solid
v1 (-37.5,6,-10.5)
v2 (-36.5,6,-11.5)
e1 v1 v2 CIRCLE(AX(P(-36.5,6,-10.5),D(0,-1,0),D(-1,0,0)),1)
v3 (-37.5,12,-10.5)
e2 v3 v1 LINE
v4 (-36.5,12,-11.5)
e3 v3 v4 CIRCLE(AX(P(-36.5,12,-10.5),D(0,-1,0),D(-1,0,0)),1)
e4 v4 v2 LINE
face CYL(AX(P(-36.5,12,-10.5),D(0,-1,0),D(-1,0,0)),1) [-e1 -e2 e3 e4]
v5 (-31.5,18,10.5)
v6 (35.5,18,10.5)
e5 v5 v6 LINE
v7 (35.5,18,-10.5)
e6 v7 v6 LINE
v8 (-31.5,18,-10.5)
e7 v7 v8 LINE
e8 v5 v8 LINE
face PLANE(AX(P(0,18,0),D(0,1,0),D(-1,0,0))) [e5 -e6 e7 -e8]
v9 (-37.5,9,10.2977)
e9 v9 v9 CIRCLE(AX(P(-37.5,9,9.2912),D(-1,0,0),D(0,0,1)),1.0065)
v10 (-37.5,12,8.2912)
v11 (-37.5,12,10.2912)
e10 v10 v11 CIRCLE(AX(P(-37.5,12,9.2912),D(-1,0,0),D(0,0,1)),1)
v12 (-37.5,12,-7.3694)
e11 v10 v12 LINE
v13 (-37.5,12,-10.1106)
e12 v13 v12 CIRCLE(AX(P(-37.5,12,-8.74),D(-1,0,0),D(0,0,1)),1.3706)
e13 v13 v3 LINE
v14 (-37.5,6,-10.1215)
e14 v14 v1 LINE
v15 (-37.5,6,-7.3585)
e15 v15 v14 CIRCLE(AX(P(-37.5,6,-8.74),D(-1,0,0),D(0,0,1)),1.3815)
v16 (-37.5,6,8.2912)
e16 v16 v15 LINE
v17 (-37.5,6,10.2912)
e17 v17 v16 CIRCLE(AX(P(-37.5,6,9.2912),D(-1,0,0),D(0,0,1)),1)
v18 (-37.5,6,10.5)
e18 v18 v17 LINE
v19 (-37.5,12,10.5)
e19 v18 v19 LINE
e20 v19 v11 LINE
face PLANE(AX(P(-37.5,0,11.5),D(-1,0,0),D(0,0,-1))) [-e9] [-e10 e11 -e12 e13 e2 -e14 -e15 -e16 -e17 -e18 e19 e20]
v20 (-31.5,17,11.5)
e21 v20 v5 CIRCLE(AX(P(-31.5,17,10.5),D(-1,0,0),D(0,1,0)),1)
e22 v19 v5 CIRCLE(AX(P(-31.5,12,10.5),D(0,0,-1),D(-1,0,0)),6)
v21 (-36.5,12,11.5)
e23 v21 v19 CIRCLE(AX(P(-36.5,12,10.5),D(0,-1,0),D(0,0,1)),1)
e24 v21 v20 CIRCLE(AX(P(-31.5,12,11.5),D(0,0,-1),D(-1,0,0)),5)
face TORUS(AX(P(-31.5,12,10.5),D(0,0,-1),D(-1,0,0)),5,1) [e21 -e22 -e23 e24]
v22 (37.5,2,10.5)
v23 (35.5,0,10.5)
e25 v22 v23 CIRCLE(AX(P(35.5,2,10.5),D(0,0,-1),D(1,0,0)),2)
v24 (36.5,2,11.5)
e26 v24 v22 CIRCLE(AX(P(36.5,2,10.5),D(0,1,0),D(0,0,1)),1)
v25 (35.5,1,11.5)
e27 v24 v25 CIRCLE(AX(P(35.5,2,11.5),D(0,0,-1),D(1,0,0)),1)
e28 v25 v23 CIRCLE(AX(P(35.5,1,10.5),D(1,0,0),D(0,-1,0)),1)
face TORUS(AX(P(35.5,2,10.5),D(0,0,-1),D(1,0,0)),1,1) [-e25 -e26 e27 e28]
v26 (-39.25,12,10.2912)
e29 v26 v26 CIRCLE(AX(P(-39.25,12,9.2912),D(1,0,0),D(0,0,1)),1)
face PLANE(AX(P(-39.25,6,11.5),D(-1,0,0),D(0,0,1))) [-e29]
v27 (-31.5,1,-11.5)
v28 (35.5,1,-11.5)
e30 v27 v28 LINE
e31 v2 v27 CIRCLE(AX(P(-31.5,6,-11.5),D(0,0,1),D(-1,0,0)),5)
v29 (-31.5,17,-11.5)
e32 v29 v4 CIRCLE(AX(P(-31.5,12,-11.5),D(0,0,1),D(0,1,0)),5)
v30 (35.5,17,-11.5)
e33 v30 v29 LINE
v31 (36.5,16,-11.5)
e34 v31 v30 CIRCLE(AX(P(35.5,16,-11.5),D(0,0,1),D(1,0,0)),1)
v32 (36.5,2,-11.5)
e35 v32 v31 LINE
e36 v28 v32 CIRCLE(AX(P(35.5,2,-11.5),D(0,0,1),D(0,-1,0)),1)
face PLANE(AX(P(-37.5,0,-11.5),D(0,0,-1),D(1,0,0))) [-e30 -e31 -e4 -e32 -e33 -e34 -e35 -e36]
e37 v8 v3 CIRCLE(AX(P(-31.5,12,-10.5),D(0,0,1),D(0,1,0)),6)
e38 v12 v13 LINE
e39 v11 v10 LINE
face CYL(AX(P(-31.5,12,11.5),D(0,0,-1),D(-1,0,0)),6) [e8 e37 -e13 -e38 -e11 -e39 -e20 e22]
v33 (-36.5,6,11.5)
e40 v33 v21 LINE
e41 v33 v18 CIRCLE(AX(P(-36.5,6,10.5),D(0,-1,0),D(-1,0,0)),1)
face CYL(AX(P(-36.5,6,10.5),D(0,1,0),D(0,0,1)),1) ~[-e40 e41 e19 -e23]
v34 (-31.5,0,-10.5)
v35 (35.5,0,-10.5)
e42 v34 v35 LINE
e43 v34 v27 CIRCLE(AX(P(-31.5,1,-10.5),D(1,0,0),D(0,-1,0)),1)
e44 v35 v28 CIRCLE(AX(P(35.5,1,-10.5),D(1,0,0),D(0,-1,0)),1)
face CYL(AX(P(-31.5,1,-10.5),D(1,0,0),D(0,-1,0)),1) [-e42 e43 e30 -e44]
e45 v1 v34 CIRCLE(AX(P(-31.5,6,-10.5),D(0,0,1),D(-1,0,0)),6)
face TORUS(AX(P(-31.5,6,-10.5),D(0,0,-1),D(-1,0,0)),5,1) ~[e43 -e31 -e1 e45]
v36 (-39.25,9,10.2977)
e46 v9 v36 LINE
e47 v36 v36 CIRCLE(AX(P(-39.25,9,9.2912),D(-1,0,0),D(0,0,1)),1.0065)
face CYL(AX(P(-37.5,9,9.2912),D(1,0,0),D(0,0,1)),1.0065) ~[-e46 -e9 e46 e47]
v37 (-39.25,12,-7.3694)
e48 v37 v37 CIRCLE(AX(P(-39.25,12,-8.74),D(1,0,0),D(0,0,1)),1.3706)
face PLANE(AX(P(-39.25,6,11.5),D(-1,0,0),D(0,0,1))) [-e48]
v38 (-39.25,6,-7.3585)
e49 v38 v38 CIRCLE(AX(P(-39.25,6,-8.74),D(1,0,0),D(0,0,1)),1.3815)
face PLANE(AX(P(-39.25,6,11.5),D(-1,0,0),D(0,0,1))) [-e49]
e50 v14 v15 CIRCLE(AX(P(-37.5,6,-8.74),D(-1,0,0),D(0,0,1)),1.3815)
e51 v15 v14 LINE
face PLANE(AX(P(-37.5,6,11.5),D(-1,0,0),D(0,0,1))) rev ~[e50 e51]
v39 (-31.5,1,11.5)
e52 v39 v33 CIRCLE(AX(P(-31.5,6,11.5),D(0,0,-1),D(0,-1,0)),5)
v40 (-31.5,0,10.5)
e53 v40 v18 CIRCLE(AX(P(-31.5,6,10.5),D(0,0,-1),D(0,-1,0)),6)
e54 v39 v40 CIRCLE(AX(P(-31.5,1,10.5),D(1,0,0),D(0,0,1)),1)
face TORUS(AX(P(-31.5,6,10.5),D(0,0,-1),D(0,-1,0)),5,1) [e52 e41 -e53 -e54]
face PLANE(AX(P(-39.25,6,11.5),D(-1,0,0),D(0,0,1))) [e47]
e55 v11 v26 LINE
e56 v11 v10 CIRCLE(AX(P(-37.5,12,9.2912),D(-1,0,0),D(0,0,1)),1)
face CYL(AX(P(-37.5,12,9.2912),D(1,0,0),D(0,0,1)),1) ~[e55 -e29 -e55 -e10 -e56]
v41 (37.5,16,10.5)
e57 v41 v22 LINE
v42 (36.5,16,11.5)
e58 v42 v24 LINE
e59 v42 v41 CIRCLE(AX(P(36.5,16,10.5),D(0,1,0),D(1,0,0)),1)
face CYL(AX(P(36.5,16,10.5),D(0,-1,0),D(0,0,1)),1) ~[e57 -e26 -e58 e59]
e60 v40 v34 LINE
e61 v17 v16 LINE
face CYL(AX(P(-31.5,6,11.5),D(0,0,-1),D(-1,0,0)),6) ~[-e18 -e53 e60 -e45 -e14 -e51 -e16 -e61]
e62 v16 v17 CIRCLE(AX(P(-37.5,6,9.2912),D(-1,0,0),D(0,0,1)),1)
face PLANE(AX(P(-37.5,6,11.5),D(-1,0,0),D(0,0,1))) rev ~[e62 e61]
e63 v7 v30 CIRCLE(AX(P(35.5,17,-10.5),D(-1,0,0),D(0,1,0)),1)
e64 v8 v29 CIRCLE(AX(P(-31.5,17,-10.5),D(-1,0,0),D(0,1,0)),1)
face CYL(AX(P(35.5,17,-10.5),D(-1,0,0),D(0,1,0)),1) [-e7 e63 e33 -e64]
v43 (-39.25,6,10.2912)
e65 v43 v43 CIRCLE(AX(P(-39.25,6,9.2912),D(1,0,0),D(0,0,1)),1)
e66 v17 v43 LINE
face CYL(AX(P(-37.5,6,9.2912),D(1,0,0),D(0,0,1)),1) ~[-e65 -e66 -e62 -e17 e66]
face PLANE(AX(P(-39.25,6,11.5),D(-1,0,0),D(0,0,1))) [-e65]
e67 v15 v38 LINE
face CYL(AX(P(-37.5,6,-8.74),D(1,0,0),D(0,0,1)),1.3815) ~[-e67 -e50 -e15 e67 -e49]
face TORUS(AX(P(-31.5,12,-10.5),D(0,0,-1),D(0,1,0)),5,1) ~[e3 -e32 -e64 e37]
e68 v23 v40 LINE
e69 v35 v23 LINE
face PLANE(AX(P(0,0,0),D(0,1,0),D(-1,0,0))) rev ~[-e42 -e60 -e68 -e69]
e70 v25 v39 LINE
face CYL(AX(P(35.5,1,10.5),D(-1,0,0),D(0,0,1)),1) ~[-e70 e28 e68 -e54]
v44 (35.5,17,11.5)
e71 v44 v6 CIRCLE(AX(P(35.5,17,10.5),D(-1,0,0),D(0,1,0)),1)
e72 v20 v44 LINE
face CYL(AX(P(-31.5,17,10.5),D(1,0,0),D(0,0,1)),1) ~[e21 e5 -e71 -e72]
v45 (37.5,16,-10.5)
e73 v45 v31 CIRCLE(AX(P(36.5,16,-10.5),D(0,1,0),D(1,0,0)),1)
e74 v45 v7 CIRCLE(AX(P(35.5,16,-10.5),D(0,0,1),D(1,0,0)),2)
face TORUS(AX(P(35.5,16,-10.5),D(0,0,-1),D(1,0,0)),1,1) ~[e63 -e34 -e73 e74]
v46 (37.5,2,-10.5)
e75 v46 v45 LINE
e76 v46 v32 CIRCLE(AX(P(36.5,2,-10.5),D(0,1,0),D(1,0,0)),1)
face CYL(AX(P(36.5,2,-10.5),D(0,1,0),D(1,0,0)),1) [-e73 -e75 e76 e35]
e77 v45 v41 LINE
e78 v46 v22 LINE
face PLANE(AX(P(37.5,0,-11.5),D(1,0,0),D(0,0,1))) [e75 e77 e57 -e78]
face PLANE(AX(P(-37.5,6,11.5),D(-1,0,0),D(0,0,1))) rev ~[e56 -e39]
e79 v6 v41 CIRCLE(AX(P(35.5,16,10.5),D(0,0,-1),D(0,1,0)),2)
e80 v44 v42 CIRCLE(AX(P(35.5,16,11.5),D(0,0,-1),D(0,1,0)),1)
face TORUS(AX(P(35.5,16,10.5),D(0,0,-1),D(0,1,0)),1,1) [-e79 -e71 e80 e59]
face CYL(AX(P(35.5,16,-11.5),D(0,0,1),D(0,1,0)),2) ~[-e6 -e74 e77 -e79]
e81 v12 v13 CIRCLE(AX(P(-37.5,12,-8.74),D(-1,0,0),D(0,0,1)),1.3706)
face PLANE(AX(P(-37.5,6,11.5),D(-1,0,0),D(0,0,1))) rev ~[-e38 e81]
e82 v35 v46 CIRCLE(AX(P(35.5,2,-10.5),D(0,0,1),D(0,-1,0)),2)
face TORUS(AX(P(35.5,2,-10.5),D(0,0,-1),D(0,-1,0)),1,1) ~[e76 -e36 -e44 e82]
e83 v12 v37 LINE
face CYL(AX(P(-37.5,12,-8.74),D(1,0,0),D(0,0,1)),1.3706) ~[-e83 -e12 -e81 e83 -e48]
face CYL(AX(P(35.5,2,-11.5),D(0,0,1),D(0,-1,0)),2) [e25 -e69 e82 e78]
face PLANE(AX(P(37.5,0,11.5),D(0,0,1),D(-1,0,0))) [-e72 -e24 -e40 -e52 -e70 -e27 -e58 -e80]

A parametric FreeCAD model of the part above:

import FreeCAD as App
import Part
import Sketcher
from FreeCAD import Vector


def edges_at(feature, points):
    """Names of the edges that pass closest to the given points."""
    edges = feature.Shape.Edges
    near = lambda p: min(range(len(edges)), key=lambda i: edges[i].distToShape(Part.Vertex(*p))[0])
    return sorted({f"Edge{near(p) + 1}" for p in points})


def add_polygon(sketch, points):
    """Adds a closed chain of lines whose ends are joined by coincident constraints."""
    first, n = sketch.GeometryCount, len(points)
    for a, b in zip(points, points[1:] + points[:1]):
        sketch.addGeometry(Part.LineSegment(App.Vector(*a, 0), App.Vector(*b, 0)), False)
    for i in range(n):
        sketch.addConstraint(Sketcher.Constraint("Coincident", first + i, 2, first + (i + 1) % n, 1))

doc = App.newDocument("Part")
body = doc.addObject("PartDesign::Body", "Body")

# Sketch on XZ plane
sketch1 = body.newObject("Sketcher::SketchObject", "Sketch")
sketch1.AttachmentSupport = (doc.getObject("XZ_Plane"), [""])
sketch1.MapMode = "FlatFace"
add_polygon(sketch1, [(-38, 12), (38, 12), (38, -12), (-38, -12)])  # lines 0-3
sketch1.addConstraint([
    Sketcher.Constraint("Horizontal", 0),
    Sketcher.Constraint("Vertical", 1),
    Sketcher.Constraint("Horizontal", 2),
    Sketcher.Constraint("Vertical", 3),
    Sketcher.Constraint("Symmetric", 0, 2, 2, 2, -1, 1),
    Sketcher.Constraint("DistanceX", 0, 1, 0, 2, 75.0),
    Sketcher.Constraint("DistanceY", 1, 2, 1, 1, 23.0),
])
pad1 = body.newObject("PartDesign::Pad", "Pad")
pad1.Profile = sketch1
pad1.Length = 18
pad1.Reversed = True
doc.recompute()

fillet = body.newObject("PartDesign::Fillet", "Fillet")
fillet.Base = (pad1, edges_at(pad1, [(-37.5, 18, 0), (-37.5, 0, 0)]))
fillet.Radius = 6

# Sketch on YZ plane
sketch2 = body.newObject("Sketcher::SketchObject", "Sketch001")
sketch2.AttachmentSupport = (doc.getObject("YZ_Plane"), [""])
sketch2.MapMode = "FlatFace"
sketch2.AttachmentOffset = App.Placement(Vector(0, 0, -37.5), App.Rotation())
sketch2.addGeometry([
    Part.Circle(Vector(12, 9.3, 0), Vector(0, 0, 1), 1),  # 0
    Part.Circle(Vector(12, -8.7, 0), Vector(0, 0, 1), 1.4),  # 1
    Part.Circle(Vector(6, 9.3, 0), Vector(0, 0, 1), 1),  # 2
    Part.Circle(Vector(6, -8.7, 0), Vector(0, 0, 1), 1.4),  # 3
    Part.Circle(Vector(9, 9.3, 0), Vector(0, 0, 1), 1),  # 4
], False)
sketch2.addConstraint([
    Sketcher.Constraint("Equal", 0, 2),
    Sketcher.Constraint("Horizontal", 0, 3, 2, 3),
    Sketcher.Constraint("Horizontal", 1, 3, 3, 3),
    Sketcher.Constraint("Horizontal", 2, 3, 4, 3),
    Sketcher.Constraint("Vertical", 0, 3, 1, 3),
    Sketcher.Constraint("Vertical", 2, 3, 3, 3),
    Sketcher.Constraint("Diameter", 0, 2.0),
    Sketcher.Constraint("Diameter", 3, 2.763),
    Sketcher.Constraint("Diameter", 4, 2.013),
    Sketcher.Constraint("DistanceX", -1, 1, 0, 3, 12.0),
    Sketcher.Constraint("DistanceX", -1, 1, 2, 3, 6.0),
    Sketcher.Constraint("DistanceX", -1, 1, 4, 3, 9.0),
    Sketcher.Constraint("Diameter", 1, 2.7412),
    Sketcher.Constraint("DistanceY", 1, 3, -1, 1, 8.74),
    Sketcher.Constraint("DistanceY", -1, 1, 0, 3, 9.2912),
])
pad2 = body.newObject("PartDesign::Pad", "Pad001")
pad2.Profile = sketch2
pad2.Length = 1.75
pad2.Reversed = True
doc.recompute()

fillet2 = body.newObject("PartDesign::Fillet", "Fillet001")
fillet2.Base = (pad2, edges_at(pad2, [(37.5, 18, 0), (37.5, 0, 0)]))
fillet2.Radius = 2
doc.recompute()

fillet3 = body.newObject("PartDesign::Fillet", "Fillet002")
fillet3.Base = (fillet2, edges_at(fillet2, [
    (36.914, 17.414, 11.5),
    (37.5, 9, 11.5),
    (36.914, 0.586, 11.5),
    (2, 0, 11.5),
    (-35.743, 1.757, 11.5),
    (-37.5, 9, 11.5),
    (-35.743, 16.243, 11.5),
    (2, 18, 11.5),
    (-35.743, 1.757, -11.5),
    (-37.5, 9, -11.5),
    (-35.743, 16.243, -11.5),
    (2, 18, -11.5),
    (36.914, 17.414, -11.5),
    (37.5, 9, -11.5),
    (36.914, 0.586, -11.5),
    (2, 0, -11.5),
]))
fillet3.Radius = 1

doc.recompute()
